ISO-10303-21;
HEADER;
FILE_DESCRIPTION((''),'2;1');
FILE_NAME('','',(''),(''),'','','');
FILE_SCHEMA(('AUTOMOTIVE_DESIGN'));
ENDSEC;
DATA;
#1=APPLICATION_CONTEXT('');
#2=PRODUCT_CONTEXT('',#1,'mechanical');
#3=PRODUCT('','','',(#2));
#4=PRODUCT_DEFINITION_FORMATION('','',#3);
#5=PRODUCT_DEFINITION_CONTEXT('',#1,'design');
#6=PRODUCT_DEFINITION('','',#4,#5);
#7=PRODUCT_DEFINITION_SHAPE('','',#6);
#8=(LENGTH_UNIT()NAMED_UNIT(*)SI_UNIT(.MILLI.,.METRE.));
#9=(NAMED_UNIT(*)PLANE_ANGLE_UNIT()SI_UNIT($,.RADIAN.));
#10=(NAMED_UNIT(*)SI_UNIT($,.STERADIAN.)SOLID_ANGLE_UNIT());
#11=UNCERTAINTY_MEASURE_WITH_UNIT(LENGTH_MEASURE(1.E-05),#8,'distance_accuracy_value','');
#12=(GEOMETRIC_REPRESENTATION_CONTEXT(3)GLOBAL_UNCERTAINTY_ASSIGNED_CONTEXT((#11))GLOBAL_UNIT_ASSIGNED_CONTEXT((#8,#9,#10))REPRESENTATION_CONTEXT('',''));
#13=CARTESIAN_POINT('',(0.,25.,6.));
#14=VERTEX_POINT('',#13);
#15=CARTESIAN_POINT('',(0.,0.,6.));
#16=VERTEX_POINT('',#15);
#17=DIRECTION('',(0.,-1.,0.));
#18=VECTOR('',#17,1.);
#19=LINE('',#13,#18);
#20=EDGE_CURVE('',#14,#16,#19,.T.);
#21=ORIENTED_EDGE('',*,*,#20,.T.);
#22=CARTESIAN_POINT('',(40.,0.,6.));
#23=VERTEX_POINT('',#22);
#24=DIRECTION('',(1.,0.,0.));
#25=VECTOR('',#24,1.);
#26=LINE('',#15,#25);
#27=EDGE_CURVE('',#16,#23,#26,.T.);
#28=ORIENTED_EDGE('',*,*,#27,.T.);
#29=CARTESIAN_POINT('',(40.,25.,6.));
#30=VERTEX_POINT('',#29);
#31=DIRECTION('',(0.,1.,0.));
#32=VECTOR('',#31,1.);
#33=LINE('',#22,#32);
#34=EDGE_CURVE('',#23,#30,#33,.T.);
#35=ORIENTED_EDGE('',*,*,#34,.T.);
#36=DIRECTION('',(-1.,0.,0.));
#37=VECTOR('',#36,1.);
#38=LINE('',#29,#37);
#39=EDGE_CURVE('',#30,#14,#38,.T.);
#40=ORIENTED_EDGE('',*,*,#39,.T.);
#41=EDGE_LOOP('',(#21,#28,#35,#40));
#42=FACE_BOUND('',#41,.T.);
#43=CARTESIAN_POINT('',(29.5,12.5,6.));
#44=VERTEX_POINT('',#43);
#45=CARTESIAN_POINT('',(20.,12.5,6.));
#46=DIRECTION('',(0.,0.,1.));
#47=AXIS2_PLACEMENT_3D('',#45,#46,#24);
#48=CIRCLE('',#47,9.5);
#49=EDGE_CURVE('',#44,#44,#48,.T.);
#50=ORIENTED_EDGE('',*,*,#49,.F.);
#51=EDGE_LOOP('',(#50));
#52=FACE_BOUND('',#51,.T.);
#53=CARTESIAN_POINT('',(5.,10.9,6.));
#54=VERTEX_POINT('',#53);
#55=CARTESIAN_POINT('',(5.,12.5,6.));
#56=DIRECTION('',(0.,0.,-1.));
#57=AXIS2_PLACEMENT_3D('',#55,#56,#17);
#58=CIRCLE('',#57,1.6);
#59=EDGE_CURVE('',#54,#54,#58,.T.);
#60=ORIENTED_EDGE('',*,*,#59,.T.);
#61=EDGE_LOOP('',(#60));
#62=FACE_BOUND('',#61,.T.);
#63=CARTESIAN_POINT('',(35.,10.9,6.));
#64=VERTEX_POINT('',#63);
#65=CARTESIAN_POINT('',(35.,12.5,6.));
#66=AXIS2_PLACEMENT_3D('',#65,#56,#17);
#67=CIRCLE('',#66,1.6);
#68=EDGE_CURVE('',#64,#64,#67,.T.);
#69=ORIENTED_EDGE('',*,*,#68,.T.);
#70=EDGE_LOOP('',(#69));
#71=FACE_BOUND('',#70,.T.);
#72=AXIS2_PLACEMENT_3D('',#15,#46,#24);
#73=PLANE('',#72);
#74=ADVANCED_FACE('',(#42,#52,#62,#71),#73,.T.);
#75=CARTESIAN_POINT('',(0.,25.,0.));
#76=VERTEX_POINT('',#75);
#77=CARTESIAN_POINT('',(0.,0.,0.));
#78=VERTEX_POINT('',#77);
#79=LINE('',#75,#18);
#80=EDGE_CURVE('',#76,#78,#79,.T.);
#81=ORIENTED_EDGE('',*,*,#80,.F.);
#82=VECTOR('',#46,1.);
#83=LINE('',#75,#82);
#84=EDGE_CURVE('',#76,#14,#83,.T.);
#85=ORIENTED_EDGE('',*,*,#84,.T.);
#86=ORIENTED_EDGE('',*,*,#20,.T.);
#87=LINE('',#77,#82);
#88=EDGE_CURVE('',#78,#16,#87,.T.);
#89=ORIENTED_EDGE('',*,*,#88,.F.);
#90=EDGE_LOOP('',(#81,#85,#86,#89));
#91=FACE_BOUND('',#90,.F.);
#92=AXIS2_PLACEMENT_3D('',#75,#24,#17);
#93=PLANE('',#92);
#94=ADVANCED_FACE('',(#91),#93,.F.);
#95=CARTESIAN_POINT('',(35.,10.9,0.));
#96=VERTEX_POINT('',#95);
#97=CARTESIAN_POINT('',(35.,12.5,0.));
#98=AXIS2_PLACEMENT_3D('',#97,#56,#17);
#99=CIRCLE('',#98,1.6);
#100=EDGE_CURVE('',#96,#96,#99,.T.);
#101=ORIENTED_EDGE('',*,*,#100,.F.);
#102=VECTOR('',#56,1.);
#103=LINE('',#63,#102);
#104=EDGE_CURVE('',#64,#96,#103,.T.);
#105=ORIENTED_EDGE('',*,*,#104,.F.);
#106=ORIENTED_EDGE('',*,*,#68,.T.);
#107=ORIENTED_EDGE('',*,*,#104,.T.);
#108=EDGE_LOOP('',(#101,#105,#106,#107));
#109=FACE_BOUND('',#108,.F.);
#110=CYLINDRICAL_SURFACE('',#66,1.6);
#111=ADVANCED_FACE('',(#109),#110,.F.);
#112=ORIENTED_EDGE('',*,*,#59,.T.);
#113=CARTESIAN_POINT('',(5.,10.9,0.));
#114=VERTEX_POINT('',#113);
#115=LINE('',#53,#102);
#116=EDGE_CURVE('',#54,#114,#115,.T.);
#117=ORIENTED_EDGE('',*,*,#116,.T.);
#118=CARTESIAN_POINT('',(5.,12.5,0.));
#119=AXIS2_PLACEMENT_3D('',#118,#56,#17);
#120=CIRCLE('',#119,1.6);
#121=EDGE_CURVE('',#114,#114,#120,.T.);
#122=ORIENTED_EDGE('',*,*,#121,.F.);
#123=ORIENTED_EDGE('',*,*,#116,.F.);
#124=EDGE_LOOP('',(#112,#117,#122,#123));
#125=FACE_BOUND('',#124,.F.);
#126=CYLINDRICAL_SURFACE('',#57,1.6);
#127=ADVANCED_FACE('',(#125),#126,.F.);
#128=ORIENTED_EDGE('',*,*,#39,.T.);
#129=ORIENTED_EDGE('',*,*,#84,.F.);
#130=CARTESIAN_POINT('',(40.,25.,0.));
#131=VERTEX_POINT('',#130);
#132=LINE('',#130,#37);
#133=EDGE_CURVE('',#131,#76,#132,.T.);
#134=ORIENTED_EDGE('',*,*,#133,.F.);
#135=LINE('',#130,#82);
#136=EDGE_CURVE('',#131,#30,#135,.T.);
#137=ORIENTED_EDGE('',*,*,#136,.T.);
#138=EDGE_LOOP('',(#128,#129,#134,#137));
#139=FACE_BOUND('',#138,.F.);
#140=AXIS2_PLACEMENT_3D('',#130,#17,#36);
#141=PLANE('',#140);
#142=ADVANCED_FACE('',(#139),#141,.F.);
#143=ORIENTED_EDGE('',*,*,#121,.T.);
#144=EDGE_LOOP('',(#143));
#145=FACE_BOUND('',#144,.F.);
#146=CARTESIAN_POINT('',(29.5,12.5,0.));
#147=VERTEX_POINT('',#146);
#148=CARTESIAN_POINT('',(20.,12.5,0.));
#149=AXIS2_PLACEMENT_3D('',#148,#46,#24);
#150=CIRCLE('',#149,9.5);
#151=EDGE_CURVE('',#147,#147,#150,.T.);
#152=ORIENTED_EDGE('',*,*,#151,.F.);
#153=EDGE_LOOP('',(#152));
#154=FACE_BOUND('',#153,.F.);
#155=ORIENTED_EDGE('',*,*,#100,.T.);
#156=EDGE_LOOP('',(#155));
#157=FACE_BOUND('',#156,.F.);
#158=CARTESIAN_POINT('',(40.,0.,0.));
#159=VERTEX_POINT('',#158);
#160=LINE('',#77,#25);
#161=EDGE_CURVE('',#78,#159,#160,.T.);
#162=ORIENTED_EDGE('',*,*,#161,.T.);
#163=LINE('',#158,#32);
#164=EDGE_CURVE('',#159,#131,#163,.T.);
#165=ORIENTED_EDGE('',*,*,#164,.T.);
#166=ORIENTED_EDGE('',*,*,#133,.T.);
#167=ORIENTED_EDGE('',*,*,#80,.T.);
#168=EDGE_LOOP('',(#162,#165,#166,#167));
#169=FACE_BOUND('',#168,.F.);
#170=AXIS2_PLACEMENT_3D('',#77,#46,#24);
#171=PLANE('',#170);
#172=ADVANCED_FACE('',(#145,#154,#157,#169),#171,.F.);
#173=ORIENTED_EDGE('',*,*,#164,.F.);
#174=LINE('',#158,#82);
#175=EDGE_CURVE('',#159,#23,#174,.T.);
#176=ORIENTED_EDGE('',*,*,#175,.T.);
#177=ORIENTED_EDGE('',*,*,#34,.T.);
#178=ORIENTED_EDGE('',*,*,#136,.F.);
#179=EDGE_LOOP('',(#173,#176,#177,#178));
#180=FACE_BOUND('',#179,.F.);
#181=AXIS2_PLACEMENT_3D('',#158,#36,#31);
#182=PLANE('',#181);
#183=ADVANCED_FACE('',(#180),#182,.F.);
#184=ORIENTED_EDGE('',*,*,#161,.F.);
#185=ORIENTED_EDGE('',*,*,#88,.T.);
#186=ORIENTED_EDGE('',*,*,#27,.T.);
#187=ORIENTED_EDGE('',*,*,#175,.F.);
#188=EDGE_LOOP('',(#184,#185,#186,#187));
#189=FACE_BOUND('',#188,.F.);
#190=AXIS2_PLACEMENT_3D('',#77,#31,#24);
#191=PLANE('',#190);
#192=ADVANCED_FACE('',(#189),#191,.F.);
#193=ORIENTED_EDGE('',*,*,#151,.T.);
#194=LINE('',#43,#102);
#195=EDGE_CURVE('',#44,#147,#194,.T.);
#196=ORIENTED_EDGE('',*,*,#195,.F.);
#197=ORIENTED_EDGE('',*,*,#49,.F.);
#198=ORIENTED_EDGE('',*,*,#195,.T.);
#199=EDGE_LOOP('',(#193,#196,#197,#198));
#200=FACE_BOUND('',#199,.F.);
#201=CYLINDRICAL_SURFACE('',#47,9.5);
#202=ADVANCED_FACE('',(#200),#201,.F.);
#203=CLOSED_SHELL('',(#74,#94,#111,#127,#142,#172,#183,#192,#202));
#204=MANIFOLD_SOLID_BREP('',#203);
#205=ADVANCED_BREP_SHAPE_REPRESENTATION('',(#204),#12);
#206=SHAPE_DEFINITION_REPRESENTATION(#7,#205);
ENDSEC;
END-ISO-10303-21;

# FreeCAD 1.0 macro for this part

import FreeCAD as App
import Part
import Sketcher

doc = App.newDocument("Part")
body = doc.addObject("PartDesign::Body", "Body")

sketch1 = doc.addObject("Sketcher::SketchObject", "Sketch")
body.addObject(sketch1)
sketch1.AttachmentSupport = (doc.XY_Plane, [""])
sketch1.MapMode = "FlatFace"
sketch1.addGeometry([
    Part.LineSegment(App.Vector(0, 25, 0), App.Vector(0, 0, 0)),
    Part.LineSegment(App.Vector(0, 0, 0), App.Vector(40, 0, 0)),
    Part.LineSegment(App.Vector(40, 0, 0), App.Vector(40, 25, 0)),
    Part.LineSegment(App.Vector(40, 25, 0), App.Vector(0, 25, 0)),
], False)
sketch1.addConstraint([
    Sketcher.Constraint("Coincident", 0, 2, 1, 1),
    Sketcher.Constraint("Coincident", 1, 2, 2, 1),
    Sketcher.Constraint("Coincident", 2, 2, 3, 1),
    Sketcher.Constraint("Coincident", 3, 2, 0, 1),
    Sketcher.Constraint("Vertical", 0),
    Sketcher.Constraint("Horizontal", 1),
    Sketcher.Constraint("Vertical", 2),
    Sketcher.Constraint("Horizontal", 3),
    Sketcher.Constraint("Coincident", 0, 2, -1, 1),
    Sketcher.Constraint("DistanceX", 1, 1, 1, 2, 40.0),
    Sketcher.Constraint("DistanceY", 0, 2, 0, 1, 25.0),
])
pad1 = doc.addObject("PartDesign::Pad", "Pad")
body.addObject(pad1)
pad1.Profile = sketch1
pad1.Length = 6

sketch2 = doc.addObject("Sketcher::SketchObject", "Sketch001")
body.addObject(sketch2)
sketch2.AttachmentSupport = (doc.XY_Plane, [""])
sketch2.MapMode = "FlatFace"
sketch2.AttachmentOffset = App.Placement(App.Vector(0, 0, 6), App.Rotation())
sketch2.addGeometry(Part.Circle(App.Vector(20, 12, 0), App.Vector(0, 0, 1), 10), False)
sketch2.addConstraint([
    Sketcher.Constraint("Diameter", 0, 19.0),
    Sketcher.Constraint("DistanceX", -1, 1, 0, 3, 20.0),
    Sketcher.Constraint("DistanceY", -1, 1, 0, 3, 12.5),
])
pocket1 = doc.addObject("PartDesign::Pocket", "Pocket")
body.addObject(pocket1)
pocket1.Profile = sketch2
pocket1.Length = 6

sketch3 = doc.addObject("Sketcher::SketchObject", "Sketch002")
body.addObject(sketch3)
sketch3.AttachmentSupport = (doc.XY_Plane, [""])
sketch3.MapMode = "FlatFace"
sketch3.AttachmentOffset = App.Placement(App.Vector(0, 0, 6), App.Rotation())
sketch3.addGeometry([
    Part.Circle(App.Vector(5, 12.5, 0), App.Vector(0, 0, 1), 1.6),
    Part.Circle(App.Vector(35, 12.5, 0), App.Vector(0, 0, 1), 1.6),
], False)
sketch3.addConstraint([
    Sketcher.Constraint("Equal", 0, 1),
    Sketcher.Constraint("Horizontal", 0, 3, 1, 3),
    Sketcher.Constraint("Diameter", 0, 3.2),
    Sketcher.Constraint("DistanceX", -1, 1, 0, 3, 5.0),
    Sketcher.Constraint("DistanceX", -1, 1, 1, 3, 35.0),
    Sketcher.Constraint("DistanceY", -1, 1, 0, 3, 12.5),
])
doc.recompute()
hole = doc.addObject("PartDesign::Hole", "Hole")
body.addObject(hole)
hole.Profile = sketch3
hole.ThreadType = "None"
hole.Diameter = 3.2
hole.DepthType = "Dimension"
hole.Depth = 6
hole.DrillPoint = "Flat"

doc.recompute()
